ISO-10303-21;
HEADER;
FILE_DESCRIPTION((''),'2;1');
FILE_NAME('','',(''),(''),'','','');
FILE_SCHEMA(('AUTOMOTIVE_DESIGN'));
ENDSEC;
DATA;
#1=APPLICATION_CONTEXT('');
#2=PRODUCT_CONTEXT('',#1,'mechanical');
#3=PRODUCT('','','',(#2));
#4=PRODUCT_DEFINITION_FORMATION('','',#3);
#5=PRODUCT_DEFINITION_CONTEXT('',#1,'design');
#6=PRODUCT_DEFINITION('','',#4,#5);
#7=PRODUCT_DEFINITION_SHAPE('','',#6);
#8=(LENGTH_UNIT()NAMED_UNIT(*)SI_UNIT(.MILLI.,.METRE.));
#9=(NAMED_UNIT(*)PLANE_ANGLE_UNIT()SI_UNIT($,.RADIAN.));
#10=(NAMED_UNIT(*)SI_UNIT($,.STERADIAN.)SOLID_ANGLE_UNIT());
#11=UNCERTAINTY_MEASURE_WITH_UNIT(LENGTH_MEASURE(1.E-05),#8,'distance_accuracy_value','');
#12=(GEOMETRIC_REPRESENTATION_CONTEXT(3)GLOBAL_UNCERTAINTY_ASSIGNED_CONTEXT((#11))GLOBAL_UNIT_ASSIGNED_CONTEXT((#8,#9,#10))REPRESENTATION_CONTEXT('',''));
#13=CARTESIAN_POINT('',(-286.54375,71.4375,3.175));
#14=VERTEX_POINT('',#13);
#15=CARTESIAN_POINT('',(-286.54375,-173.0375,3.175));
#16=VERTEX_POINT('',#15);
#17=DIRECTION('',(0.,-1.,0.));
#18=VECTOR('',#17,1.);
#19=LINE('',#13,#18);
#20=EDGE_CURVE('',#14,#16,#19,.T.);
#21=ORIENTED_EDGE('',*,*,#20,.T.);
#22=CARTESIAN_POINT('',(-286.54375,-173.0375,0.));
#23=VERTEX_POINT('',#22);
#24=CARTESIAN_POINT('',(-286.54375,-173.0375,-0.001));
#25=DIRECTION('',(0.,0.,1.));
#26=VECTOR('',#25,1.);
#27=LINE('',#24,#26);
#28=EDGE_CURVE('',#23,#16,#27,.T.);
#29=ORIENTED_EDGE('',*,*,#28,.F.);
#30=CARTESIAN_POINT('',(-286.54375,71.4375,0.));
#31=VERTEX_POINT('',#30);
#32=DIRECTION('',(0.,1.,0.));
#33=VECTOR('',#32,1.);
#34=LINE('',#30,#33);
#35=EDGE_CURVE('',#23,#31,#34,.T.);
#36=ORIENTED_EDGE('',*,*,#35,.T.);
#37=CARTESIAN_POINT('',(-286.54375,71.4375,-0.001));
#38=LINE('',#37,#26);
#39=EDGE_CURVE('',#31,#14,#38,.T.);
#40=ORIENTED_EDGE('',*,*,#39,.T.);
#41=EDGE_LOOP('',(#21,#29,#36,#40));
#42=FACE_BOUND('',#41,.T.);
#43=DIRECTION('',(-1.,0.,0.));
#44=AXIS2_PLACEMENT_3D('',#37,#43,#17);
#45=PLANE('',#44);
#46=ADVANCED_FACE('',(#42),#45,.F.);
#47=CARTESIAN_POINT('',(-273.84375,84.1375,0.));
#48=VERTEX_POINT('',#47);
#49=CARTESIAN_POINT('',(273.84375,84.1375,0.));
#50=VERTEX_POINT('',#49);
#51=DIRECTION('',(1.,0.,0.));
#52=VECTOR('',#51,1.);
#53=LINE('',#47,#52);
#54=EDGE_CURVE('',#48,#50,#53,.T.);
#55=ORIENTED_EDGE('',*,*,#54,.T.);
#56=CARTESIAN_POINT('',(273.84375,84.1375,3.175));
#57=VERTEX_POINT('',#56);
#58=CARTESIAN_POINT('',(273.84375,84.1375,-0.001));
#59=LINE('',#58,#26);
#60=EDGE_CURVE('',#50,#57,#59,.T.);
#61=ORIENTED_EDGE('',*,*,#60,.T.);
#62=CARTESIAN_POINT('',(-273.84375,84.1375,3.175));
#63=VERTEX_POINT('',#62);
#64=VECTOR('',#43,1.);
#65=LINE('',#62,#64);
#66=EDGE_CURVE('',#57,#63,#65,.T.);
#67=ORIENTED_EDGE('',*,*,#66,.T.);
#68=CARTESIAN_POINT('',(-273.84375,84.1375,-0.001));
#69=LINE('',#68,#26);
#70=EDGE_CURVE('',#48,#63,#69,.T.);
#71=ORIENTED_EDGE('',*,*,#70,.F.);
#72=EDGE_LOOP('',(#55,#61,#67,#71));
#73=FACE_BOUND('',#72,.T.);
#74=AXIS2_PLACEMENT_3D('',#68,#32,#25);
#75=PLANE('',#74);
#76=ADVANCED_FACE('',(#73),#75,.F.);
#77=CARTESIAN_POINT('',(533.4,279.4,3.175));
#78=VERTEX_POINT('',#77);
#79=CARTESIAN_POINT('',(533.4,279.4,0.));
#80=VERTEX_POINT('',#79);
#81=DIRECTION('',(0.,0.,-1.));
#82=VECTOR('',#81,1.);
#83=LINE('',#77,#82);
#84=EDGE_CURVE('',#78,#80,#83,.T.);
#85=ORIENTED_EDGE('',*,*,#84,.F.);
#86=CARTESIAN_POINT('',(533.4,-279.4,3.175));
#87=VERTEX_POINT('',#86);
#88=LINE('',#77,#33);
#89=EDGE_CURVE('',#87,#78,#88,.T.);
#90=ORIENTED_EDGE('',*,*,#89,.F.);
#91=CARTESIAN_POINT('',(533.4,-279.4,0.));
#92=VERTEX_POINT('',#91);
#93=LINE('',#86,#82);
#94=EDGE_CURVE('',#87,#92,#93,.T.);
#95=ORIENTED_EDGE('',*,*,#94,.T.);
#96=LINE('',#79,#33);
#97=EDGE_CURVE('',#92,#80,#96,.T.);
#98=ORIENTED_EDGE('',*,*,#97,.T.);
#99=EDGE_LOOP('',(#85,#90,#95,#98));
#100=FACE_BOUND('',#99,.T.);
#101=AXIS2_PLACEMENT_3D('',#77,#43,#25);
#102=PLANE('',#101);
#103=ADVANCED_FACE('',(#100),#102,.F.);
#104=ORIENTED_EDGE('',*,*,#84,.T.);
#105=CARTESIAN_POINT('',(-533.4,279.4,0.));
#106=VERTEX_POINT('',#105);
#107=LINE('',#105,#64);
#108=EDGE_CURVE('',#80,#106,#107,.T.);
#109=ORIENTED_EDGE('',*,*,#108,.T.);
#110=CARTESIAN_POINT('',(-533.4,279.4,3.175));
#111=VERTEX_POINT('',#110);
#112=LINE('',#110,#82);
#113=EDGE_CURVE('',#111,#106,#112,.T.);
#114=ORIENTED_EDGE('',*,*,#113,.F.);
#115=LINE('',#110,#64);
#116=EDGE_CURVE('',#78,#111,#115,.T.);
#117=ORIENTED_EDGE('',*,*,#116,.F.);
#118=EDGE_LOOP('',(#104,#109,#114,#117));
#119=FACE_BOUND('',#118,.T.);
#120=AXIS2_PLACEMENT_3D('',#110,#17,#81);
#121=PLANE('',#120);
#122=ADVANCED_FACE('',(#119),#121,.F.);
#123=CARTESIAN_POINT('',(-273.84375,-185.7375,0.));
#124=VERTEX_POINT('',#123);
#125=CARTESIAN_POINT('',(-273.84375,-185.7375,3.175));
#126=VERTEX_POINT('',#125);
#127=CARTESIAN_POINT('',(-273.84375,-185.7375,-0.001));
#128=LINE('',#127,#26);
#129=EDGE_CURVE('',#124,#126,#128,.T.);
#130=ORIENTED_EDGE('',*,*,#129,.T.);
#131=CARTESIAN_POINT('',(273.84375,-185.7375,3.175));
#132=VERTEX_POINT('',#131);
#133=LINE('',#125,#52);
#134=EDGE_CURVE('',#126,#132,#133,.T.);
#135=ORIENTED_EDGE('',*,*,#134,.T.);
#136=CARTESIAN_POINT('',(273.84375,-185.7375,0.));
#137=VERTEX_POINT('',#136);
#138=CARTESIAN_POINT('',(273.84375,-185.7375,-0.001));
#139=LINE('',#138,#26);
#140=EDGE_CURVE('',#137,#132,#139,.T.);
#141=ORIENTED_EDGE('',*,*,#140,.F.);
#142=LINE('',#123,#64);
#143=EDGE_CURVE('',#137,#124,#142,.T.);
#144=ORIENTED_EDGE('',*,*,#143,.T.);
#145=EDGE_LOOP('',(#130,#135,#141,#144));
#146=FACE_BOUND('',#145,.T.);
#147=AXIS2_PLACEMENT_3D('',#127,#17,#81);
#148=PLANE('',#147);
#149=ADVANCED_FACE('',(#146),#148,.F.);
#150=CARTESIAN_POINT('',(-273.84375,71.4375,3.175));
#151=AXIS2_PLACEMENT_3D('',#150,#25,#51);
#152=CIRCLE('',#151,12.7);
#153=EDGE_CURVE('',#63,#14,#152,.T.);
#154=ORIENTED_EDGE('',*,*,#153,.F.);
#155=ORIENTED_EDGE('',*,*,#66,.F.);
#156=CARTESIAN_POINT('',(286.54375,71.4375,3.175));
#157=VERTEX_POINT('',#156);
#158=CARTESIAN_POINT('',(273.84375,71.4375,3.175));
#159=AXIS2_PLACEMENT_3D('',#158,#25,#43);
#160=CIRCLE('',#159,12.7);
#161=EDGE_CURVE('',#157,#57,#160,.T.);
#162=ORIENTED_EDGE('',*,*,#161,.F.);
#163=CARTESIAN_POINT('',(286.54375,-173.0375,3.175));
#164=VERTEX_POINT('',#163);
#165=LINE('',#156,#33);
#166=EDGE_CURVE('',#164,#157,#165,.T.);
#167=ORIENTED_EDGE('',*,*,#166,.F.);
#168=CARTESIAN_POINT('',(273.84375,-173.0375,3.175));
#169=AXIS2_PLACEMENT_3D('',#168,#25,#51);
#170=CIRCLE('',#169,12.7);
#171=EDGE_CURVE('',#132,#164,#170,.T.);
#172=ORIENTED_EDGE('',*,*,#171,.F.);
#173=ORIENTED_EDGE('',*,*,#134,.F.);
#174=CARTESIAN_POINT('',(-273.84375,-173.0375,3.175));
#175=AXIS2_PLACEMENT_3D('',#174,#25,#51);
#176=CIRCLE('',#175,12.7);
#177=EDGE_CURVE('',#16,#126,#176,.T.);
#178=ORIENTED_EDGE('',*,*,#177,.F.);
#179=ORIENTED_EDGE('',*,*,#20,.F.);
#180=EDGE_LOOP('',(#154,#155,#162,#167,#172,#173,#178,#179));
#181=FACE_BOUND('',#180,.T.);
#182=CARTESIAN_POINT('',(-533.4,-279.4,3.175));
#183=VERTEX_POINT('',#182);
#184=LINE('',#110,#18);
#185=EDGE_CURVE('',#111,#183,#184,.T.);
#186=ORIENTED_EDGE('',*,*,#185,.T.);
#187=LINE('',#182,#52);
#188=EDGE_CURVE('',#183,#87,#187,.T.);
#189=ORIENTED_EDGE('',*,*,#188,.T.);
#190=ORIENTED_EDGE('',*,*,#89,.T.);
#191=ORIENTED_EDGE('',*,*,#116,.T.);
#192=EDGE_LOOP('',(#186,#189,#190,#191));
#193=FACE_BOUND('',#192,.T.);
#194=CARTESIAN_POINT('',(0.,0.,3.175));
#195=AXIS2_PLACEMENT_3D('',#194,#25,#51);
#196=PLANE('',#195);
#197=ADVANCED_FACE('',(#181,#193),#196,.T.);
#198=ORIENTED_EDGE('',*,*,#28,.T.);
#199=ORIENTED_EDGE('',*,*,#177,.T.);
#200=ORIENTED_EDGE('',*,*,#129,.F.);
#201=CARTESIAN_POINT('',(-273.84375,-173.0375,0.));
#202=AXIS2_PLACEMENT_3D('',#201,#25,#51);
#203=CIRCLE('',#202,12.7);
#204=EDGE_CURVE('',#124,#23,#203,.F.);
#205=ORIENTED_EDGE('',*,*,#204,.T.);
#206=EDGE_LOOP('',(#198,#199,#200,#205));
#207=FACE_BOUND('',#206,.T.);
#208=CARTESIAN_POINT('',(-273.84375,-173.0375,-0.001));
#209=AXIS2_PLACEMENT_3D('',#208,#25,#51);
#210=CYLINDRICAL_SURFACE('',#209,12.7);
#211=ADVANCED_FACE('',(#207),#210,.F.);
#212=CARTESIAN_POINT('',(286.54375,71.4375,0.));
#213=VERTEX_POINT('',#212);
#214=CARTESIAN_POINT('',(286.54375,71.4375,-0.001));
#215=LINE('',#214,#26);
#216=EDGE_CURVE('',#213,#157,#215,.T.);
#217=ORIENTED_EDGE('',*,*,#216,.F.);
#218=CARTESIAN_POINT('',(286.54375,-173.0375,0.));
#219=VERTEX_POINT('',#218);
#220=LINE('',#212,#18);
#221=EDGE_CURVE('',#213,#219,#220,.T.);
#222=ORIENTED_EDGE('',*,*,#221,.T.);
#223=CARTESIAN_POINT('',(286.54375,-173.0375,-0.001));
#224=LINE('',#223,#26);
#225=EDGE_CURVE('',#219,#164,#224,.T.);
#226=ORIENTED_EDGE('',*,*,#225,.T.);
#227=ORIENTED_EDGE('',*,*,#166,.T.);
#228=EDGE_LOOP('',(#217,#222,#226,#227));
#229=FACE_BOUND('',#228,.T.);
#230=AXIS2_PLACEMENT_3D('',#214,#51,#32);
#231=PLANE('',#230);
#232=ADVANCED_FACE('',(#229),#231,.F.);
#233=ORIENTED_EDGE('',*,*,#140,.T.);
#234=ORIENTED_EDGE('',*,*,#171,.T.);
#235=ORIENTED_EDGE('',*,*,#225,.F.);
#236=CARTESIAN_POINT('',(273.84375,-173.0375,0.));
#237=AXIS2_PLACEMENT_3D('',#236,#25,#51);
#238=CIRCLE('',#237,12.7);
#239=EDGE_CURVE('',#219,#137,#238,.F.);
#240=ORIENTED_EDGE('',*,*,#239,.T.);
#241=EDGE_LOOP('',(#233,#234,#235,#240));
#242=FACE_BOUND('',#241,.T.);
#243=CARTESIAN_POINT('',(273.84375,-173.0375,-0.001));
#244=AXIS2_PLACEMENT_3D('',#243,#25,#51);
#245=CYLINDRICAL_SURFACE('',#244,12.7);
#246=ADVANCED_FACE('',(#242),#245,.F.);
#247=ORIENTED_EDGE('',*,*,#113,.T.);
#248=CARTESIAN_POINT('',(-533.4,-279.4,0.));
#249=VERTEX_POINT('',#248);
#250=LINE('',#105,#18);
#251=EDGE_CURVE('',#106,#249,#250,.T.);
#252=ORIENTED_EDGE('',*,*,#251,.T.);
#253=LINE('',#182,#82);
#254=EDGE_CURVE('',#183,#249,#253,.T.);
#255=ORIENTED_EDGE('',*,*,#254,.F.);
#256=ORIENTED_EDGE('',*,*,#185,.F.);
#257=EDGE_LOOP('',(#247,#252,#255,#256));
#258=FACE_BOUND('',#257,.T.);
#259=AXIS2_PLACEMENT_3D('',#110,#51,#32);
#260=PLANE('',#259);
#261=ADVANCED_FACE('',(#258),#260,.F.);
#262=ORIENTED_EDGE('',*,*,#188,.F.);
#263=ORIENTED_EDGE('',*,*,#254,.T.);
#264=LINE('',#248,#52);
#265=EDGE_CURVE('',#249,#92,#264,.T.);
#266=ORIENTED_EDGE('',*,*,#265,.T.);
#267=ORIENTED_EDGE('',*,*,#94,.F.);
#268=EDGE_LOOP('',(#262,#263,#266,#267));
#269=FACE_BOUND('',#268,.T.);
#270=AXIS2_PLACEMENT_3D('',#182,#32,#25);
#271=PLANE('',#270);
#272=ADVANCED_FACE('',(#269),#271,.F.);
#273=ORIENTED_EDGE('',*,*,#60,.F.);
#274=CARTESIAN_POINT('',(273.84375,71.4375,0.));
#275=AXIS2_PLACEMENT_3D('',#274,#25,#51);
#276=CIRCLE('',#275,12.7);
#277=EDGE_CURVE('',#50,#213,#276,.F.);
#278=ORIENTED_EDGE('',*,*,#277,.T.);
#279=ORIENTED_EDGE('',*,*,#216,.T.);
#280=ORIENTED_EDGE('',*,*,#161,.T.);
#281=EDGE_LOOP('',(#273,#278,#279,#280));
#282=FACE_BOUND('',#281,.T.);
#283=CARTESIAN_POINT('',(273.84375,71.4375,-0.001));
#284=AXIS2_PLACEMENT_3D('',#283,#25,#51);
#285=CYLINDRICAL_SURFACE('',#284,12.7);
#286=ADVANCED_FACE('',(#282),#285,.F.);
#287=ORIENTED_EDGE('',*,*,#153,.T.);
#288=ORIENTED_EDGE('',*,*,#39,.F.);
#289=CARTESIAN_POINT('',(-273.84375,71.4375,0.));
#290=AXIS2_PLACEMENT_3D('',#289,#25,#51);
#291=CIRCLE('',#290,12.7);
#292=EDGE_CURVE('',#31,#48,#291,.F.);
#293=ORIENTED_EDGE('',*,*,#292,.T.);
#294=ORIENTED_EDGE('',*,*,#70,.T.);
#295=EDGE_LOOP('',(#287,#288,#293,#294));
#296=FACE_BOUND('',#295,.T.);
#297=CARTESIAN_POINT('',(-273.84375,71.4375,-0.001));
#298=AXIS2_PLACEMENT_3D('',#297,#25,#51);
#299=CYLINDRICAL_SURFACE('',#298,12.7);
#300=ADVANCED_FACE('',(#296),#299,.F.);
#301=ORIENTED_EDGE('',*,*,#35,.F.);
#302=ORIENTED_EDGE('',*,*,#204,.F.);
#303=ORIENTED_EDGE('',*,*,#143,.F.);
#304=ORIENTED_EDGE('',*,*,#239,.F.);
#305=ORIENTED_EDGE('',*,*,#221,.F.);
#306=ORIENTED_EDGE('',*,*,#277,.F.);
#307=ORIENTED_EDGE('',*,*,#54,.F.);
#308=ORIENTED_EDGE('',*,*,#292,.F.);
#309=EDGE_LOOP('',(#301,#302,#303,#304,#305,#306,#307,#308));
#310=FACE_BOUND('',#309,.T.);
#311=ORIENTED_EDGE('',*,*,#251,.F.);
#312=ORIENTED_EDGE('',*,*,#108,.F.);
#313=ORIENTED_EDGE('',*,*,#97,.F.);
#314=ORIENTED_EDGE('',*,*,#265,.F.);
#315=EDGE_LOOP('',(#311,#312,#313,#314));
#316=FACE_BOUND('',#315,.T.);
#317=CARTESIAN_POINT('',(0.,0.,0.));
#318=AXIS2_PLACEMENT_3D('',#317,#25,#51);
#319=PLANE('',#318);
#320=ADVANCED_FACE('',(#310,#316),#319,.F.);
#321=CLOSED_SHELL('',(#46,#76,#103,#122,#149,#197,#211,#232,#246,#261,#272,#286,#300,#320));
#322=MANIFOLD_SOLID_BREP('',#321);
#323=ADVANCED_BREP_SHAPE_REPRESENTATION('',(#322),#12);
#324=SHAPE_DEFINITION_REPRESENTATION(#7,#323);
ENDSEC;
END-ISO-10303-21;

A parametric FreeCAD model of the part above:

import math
import FreeCAD as App
import Part
import Sketcher
from FreeCAD import Vector
Q = App.Units.Quantity

doc = App.newDocument("Part")
body = doc.addObject("PartDesign::Body", "Body")

# Sketch on XY plane
sketch1 = doc.addObject("Sketcher::SketchObject", "Sketch")
body.addObject(sketch1)
sketch1.AttachmentSupport = (doc.XY_Plane, [""])
sketch1.MapMode = "FlatFace"
sketch1.addGeometry([
    Part.LineSegment(Vector(-533, 279, 0), Vector(-533, -279, 0)),
    Part.LineSegment(Vector(-533, -279, 0), Vector(533, -279, 0)),
    Part.LineSegment(Vector(533, -279, 0), Vector(533, 279, 0)),
    Part.LineSegment(Vector(533, 279, 0), Vector(-533, 279, 0)),
], False)
sketch1.addConstraint([
    Sketcher.Constraint("Coincident", 0, 2, 1, 1),
    Sketcher.Constraint("Coincident", 1, 2, 2, 1),
    Sketcher.Constraint("Coincident", 2, 2, 3, 1),
    Sketcher.Constraint("Coincident", 3, 2, 0, 1),
    Sketcher.Constraint("Vertical", 0),
    Sketcher.Constraint("Horizontal", 1),
    Sketcher.Constraint("Vertical", 2),
    Sketcher.Constraint("Horizontal", 3),
    Sketcher.Constraint("Symmetric", 0, 2, 2, 2, -1, 1),
    Sketcher.Constraint("DistanceX", 1, 1, 1, 2, Q("42 in")),
    Sketcher.Constraint("DistanceY", 0, 2, 0, 1, Q("22 in")),
])
pad1 = doc.addObject("PartDesign::Pad", "Pad")
body.addObject(pad1)
pad1.Profile = sketch1
pad1.Length = Q("0.125 in")

# Sketch on XY plane
sketch2 = doc.addObject("Sketcher::SketchObject", "Sketch001")
body.addObject(sketch2)
sketch2.AttachmentSupport = (doc.XY_Plane, [""])
sketch2.MapMode = "FlatFace"
sketch2.AttachmentOffset = App.Placement(Vector(0, 0, 0.125 * 25.4), App.Rotation())
sketch2.addGeometry([
    Part.LineSegment(Vector(274, 84, 0), Vector(-274, 84, 0)),  # 0
    Part.ArcOfCircle(Part.Circle(Vector(-274, 71, 0), Vector(0, 0, 1), 13), math.radians(90), math.radians(180)),  # 1
    Part.LineSegment(Vector(-287, 71, 0), Vector(-287, -173, 0)),  # 2
    Part.ArcOfCircle(Part.Circle(Vector(-274, -173, 0), Vector(0, 0, 1), 13), math.radians(180), math.radians(270)),  # 3
    Part.LineSegment(Vector(-274, -186, 0), Vector(274, -186, 0)),  # 4
    Part.ArcOfCircle(Part.Circle(Vector(274, -173, 0), Vector(0, 0, 1), 13), math.radians(-90), math.radians(0)),  # 5
    Part.LineSegment(Vector(287, -173, 0), Vector(287, 71, 0)),  # 6
    Part.ArcOfCircle(Part.Circle(Vector(274, 71, 0), Vector(0, 0, 1), 13), math.radians(0), math.radians(90)),  # 7
], False)
sketch2.addConstraint([
    Sketcher.Constraint("Tangent", 0, 2, 1, 1),
    Sketcher.Constraint("Tangent", 1, 2, 2, 1),
    Sketcher.Constraint("Tangent", 2, 2, 3, 1),
    Sketcher.Constraint("Tangent", 3, 2, 4, 1),
    Sketcher.Constraint("Tangent", 4, 2, 5, 1),
    Sketcher.Constraint("Tangent", 5, 2, 6, 1),
    Sketcher.Constraint("Tangent", 6, 2, 7, 1),
    Sketcher.Constraint("Tangent", 7, 2, 0, 1),
    Sketcher.Constraint("Horizontal", 0),
    Sketcher.Constraint("Vertical", 2),
    Sketcher.Constraint("Horizontal", 4),
    Sketcher.Constraint("Vertical", 6),
    Sketcher.Constraint("Equal", 1, 3),
    Sketcher.Constraint("Equal", 3, 5),
    Sketcher.Constraint("Equal", 5, 7),
    Sketcher.Constraint("Radius", 1, Q("0.5 in")),
    Sketcher.Constraint("DistanceX", 0, 2, 0, 1, Q("21.5625 in")),
    Sketcher.Constraint("DistanceY", 2, 2, 2, 1, Q("9.625 in")),
    Sketcher.Constraint("DistanceX", 1, 3, -1, 1, Q("10.78125 in")),
    Sketcher.Constraint("DistanceY", -1, 1, 1, 3, Q("2.8125 in")),
])
pocket1 = doc.addObject("PartDesign::Pocket", "Pocket")
body.addObject(pocket1)
pocket1.Profile = sketch2
pocket1.Type = "UpToFirst"

doc.recompute()
